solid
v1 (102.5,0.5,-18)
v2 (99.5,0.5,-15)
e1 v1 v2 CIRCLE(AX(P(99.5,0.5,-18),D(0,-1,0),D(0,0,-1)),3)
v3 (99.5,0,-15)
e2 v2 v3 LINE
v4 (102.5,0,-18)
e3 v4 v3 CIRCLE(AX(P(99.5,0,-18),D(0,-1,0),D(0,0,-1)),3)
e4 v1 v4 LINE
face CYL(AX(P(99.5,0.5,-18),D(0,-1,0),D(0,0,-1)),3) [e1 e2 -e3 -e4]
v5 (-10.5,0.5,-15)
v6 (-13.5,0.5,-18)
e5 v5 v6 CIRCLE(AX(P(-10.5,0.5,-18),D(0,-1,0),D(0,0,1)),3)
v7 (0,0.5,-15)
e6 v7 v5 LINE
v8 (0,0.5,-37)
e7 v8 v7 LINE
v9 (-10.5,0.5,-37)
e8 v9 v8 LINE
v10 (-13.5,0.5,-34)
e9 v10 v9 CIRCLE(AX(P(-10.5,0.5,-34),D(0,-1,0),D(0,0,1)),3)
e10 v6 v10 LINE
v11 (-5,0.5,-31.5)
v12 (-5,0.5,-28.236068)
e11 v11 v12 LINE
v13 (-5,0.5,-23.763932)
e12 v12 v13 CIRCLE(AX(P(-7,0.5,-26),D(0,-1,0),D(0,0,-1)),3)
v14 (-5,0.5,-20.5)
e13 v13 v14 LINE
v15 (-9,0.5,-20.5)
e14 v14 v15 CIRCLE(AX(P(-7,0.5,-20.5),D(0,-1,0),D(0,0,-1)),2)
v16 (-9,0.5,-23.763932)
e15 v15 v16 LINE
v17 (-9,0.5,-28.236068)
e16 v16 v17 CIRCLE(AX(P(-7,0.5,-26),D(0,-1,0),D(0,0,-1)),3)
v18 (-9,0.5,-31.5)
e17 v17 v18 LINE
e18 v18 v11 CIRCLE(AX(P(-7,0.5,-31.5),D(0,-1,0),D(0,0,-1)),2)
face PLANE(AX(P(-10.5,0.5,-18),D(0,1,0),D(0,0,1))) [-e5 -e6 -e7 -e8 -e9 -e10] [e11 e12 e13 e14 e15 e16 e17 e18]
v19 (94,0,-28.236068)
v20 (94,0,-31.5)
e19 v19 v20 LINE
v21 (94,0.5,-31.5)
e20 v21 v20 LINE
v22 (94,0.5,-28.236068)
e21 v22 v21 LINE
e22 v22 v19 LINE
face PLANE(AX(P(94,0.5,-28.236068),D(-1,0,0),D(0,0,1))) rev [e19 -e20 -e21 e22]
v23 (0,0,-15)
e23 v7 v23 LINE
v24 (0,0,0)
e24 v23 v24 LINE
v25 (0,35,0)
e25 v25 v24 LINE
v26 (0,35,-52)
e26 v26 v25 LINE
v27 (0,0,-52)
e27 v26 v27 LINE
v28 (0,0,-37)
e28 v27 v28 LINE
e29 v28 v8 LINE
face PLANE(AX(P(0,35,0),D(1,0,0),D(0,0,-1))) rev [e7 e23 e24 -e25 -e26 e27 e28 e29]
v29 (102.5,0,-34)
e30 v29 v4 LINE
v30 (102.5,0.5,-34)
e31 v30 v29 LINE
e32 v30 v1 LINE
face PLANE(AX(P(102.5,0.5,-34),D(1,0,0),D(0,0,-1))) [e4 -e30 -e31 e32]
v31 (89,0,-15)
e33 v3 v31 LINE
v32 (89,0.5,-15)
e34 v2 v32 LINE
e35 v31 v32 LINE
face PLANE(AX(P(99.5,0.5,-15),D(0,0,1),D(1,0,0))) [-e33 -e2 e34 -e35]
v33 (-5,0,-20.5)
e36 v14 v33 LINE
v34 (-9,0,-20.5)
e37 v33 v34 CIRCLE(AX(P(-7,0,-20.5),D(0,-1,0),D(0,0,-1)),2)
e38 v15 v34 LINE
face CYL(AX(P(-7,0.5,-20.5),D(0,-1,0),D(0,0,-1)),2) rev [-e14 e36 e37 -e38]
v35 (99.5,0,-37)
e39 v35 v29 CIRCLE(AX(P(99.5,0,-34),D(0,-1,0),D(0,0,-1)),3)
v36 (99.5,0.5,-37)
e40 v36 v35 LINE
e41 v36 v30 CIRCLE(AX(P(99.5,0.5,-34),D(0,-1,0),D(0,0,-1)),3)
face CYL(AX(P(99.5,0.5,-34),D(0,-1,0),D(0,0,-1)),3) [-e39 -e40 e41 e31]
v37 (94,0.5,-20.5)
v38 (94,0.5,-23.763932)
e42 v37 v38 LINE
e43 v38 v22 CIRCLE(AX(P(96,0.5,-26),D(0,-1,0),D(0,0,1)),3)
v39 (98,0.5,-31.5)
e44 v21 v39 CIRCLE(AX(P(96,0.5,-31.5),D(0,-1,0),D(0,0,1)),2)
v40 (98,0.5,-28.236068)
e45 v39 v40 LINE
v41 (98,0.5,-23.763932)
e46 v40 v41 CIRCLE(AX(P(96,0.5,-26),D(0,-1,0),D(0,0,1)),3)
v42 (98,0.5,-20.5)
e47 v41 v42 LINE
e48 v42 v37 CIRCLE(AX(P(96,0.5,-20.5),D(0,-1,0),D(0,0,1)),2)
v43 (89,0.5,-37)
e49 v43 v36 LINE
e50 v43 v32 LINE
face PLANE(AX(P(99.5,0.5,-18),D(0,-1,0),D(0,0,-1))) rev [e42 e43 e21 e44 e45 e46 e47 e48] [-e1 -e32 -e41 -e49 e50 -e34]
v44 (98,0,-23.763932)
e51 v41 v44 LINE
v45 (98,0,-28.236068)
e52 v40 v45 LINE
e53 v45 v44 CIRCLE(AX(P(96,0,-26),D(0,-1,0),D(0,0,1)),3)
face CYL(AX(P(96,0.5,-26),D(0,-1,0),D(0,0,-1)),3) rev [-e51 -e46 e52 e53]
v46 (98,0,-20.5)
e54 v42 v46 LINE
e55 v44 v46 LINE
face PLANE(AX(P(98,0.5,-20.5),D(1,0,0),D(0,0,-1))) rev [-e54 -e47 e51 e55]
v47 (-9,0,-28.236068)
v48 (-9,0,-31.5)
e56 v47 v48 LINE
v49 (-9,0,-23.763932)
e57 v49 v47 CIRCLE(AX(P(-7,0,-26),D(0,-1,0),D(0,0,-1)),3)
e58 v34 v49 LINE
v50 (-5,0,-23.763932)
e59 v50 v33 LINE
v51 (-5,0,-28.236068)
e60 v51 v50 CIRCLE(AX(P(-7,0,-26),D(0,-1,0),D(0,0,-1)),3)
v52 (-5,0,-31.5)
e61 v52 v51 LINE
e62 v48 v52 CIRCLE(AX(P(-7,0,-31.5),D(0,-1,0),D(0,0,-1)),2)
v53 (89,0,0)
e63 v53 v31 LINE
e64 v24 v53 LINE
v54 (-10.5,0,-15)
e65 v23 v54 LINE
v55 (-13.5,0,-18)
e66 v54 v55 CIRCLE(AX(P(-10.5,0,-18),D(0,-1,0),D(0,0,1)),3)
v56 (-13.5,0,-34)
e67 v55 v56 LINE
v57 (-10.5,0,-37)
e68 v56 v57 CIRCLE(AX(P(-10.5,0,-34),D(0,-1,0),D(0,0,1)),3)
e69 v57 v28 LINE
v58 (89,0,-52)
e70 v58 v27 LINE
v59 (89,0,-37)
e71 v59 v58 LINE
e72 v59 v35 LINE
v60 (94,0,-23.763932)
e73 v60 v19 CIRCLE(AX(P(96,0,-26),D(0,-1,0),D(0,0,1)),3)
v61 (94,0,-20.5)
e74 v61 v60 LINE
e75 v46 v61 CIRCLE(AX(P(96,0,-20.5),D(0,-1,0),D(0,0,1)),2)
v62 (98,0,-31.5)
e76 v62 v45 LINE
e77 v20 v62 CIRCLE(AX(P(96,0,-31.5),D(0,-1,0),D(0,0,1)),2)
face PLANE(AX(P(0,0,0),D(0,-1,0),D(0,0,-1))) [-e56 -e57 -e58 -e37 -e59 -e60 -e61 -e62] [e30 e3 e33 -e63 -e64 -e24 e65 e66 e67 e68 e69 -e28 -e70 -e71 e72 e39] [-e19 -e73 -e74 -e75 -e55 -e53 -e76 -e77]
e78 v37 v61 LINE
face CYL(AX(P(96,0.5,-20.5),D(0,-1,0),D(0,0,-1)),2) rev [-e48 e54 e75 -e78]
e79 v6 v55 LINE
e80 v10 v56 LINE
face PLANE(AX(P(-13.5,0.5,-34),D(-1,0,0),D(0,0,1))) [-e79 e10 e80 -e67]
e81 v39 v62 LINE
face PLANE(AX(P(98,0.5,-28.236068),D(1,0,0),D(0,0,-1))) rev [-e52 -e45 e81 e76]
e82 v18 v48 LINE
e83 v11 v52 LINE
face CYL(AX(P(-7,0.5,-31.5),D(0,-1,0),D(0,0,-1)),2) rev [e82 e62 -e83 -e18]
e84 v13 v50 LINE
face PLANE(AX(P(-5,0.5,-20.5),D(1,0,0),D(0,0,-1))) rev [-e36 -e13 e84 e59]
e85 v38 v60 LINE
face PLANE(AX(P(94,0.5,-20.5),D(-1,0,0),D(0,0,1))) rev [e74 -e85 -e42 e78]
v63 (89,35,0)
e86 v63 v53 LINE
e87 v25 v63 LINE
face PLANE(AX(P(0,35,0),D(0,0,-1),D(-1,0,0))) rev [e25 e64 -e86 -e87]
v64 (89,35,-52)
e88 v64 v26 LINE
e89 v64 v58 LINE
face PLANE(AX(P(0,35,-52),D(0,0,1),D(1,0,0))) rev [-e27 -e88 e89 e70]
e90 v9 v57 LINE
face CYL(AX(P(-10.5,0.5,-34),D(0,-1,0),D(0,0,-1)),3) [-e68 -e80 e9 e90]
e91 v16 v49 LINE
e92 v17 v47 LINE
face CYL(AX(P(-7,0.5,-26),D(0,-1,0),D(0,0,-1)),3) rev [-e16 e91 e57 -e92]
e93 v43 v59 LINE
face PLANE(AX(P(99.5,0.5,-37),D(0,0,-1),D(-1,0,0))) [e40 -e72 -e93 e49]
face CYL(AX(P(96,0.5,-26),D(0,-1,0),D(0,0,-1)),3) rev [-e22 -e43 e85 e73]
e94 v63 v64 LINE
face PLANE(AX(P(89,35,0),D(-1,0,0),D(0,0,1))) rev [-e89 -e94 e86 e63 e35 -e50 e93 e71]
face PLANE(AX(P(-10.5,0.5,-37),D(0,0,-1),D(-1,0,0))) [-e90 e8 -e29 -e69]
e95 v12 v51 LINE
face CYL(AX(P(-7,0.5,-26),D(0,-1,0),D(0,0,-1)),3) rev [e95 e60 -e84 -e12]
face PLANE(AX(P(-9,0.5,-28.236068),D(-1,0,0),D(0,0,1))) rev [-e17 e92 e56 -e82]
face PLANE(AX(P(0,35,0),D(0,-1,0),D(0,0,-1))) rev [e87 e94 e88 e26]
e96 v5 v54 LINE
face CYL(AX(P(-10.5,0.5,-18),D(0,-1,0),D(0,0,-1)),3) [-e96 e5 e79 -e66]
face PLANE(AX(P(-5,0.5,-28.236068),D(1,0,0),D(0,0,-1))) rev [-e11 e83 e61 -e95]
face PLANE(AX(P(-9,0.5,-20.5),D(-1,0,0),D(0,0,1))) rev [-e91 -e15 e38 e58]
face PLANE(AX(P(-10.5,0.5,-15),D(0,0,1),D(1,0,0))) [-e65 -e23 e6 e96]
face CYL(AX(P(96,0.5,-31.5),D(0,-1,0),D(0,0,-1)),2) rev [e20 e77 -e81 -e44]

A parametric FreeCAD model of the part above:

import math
import FreeCAD as App
import Part
import Sketcher
from FreeCAD import Vector
Q = App.Units.Quantity


def add_polygon(sketch, points):
    """Adds a closed chain of lines whose ends are joined by coincident constraints."""
    first, n = sketch.GeometryCount, len(points)
    for a, b in zip(points, points[1:] + points[:1]):
        sketch.addGeometry(Part.LineSegment(App.Vector(*a, 0), App.Vector(*b, 0)), False)
    for i in range(n):
        sketch.addConstraint(Sketcher.Constraint("Coincident", first + i, 2, first + (i + 1) % n, 1))

doc = App.newDocument("Part")
body = doc.addObject("PartDesign::Body", "Body")

# Sketch on XZ plane
sketch1 = body.newObject("Sketcher::SketchObject", "Sketch")
sketch1.AttachmentSupport = (doc.getObject("XZ_Plane"), [""])
sketch1.MapMode = "FlatFace"
add_polygon(sketch1, [(0, -52), (0, 0), (89, 0), (89, -52)])  # lines 0-3
sketch1.addConstraint([
    Sketcher.Constraint("Vertical", 0),
    Sketcher.Constraint("Horizontal", 1),
    Sketcher.Constraint("Vertical", 2),
    Sketcher.Constraint("Horizontal", 3),
    Sketcher.Constraint("Coincident", 0, 2, -1, 1),
    Sketcher.Constraint("DistanceX", 1, 1, 1, 2, Q("89 mm")),
    Sketcher.Constraint("DistanceY", 0, 1, 0, 2, Q("52 mm")),
])
pad1 = body.newObject("PartDesign::Pad", "Pad")
pad1.Profile = sketch1
pad1.Length = 35
pad1.Reversed = True

# Sketch on XZ plane
sketch2 = body.newObject("Sketcher::SketchObject", "Sketch001")
sketch2.AttachmentSupport = (doc.getObject("XZ_Plane"), [""])
sketch2.MapMode = "FlatFace"
sketch2.addGeometry([
    Part.LineSegment(Vector(-10.5, -37, 0), Vector(13.5, -37, 0)),  # 0
    Part.LineSegment(Vector(13.5, -37, 0), Vector(13.5, -15, 0)),  # 1
    Part.LineSegment(Vector(13.5, -15, 0), Vector(-10.5, -15, 0)),  # 2
    Part.ArcOfCircle(Part.Circle(Vector(-10.5, -18, 0), Vector(0, 0, 1), 3), math.radians(90), math.radians(180)),  # 3
    Part.LineSegment(Vector(-13.5, -18, 0), Vector(-13.5, -34, 0)),  # 4
    Part.ArcOfCircle(Part.Circle(Vector(-10.5, -34, 0), Vector(0, 0, 1), 3), math.radians(180), math.radians(270)),  # 5
    Part.ArcOfCircle(Part.Circle(Vector(-7, -20.5, 0), Vector(0, 0, 1), 2), math.radians(0), math.radians(180)),  # 6
    Part.LineSegment(Vector(-5, -20.5, 0), Vector(-5, -23.763932, 0)),  # 7
    Part.ArcOfCircle(Part.Circle(Vector(-7, -26, 0), Vector(0, 0, 1), 3), math.radians(-48.189685), math.radians(48.189685)),  # 8
    Part.LineSegment(Vector(-5, -28.236068, 0), Vector(-5, -31.5, 0)),  # 9
    Part.ArcOfCircle(Part.Circle(Vector(-7, -31.5, 0), Vector(0, 0, 1), 2), math.radians(180), math.radians(360)),  # 10
    Part.LineSegment(Vector(-9, -31.5, 0), Vector(-9, -28.236068, 0)),  # 11
    Part.ArcOfCircle(Part.Circle(Vector(-7, -26, 0), Vector(0, 0, 1), 3), math.radians(131.810315), math.radians(228.189685)),  # 12
    Part.LineSegment(Vector(-9, -23.763932, 0), Vector(-9, -20.5, 0)),  # 13
    Part.LineSegment(Vector(75.5, -15, 0), Vector(75.5, -37, 0)),  # 14
    Part.LineSegment(Vector(75.5, -37, 0), Vector(99.5, -37, 0)),  # 15
    Part.ArcOfCircle(Part.Circle(Vector(99.5, -34, 0), Vector(0, 0, 1), 3), math.radians(-90), math.radians(0)),  # 16
    Part.LineSegment(Vector(102.5, -34, 0), Vector(102.5, -18, 0)),  # 17
    Part.ArcOfCircle(Part.Circle(Vector(99.5, -18, 0), Vector(0, 0, 1), 3), math.radians(0), math.radians(90)),  # 18
    Part.LineSegment(Vector(99.5, -15, 0), Vector(75.5, -15, 0)),  # 19
    Part.LineSegment(Vector(98, -28.236068, 0), Vector(98, -31.5, 0)),  # 20
    Part.ArcOfCircle(Part.Circle(Vector(96, -31.5, 0), Vector(0, 0, 1), 2), math.radians(180), math.radians(360)),  # 21
    Part.LineSegment(Vector(94, -31.5, 0), Vector(94, -28.236068, 0)),  # 22
    Part.ArcOfCircle(Part.Circle(Vector(96, -26, 0), Vector(0, 0, 1), 3), math.radians(131.810315), math.radians(228.189685)),  # 23
    Part.LineSegment(Vector(94, -23.763932, 0), Vector(94, -20.5, 0)),  # 24
    Part.ArcOfCircle(Part.Circle(Vector(96, -20.5, 0), Vector(0, 0, 1), 2), math.radians(0), math.radians(180)),  # 25
    Part.LineSegment(Vector(98, -20.5, 0), Vector(98, -23.763932, 0)),  # 26
    Part.ArcOfCircle(Part.Circle(Vector(96, -26, 0), Vector(0, 0, 1), 3), math.radians(-48.189685), math.radians(48.189685)),  # 27
], False)
sketch2.addConstraint([
    Sketcher.Constraint("Coincident", 0, 2, 1, 1),
    Sketcher.Constraint("Coincident", 1, 2, 2, 1),
    Sketcher.Constraint("Tangent", 2, 2, 3, 1),
    Sketcher.Constraint("Tangent", 3, 2, 4, 1),
    Sketcher.Constraint("Tangent", 4, 2, 5, 1),
    Sketcher.Constraint("Tangent", 5, 2, 0, 1),
    Sketcher.Constraint("Tangent", 6, 1, 7, 1),
    Sketcher.Constraint("Coincident", 7, 2, 8, 2),
    Sketcher.Constraint("Coincident", 8, 1, 9, 1),
    Sketcher.Constraint("Tangent", 9, 2, 10, 2),
    Sketcher.Constraint("Tangent", 10, 1, 11, 1),
    Sketcher.Constraint("Coincident", 11, 2, 12, 2),
    Sketcher.Constraint("Coincident", 12, 1, 13, 1),
    Sketcher.Constraint("Tangent", 13, 2, 6, 2),
    Sketcher.Constraint("Coincident", 14, 2, 15, 1),
    Sketcher.Constraint("Tangent", 15, 2, 16, 1),
    Sketcher.Constraint("Tangent", 16, 2, 17, 1),
    Sketcher.Constraint("Tangent", 17, 2, 18, 1),
    Sketcher.Constraint("Tangent", 18, 2, 19, 1),
    Sketcher.Constraint("Coincident", 19, 2, 14, 1),
    Sketcher.Constraint("Tangent", 20, 2, 21, 2),
    Sketcher.Constraint("Tangent", 21, 1, 22, 1),
    Sketcher.Constraint("Coincident", 22, 2, 23, 2),
    Sketcher.Constraint("Coincident", 23, 1, 24, 1),
    Sketcher.Constraint("Tangent", 24, 2, 25, 2),
    Sketcher.Constraint("Tangent", 25, 1, 26, 1),
    Sketcher.Constraint("Coincident", 26, 2, 27, 2),
    Sketcher.Constraint("Coincident", 27, 1, 20, 1),
    Sketcher.Constraint("Horizontal", 0),
    Sketcher.Constraint("Vertical", 1),
    Sketcher.Constraint("Horizontal", 2),
    Sketcher.Constraint("Vertical", 4),
    Sketcher.Constraint("Vertical", 7),
    Sketcher.Constraint("Vertical", 9),
    Sketcher.Constraint("Vertical", 11),
    Sketcher.Constraint("Vertical", 13),
    Sketcher.Constraint("Vertical", 14),
    Sketcher.Constraint("Horizontal", 15),
    Sketcher.Constraint("Vertical", 17),
    Sketcher.Constraint("Horizontal", 19),
    Sketcher.Constraint("Vertical", 20),
    Sketcher.Constraint("Vertical", 22),
    Sketcher.Constraint("Vertical", 24),
    Sketcher.Constraint("Vertical", 26),
    Sketcher.Constraint("Coincident", 12, 3, 8, 3),
    Sketcher.Constraint("Coincident", 27, 3, 23, 3),
    Sketcher.Constraint("Equal", 3, 5),
    Sketcher.Constraint("Equal", 5, 8),
    Sketcher.Constraint("Equal", 6, 10),
    Sketcher.Constraint("Equal", 8, 12),
    Sketcher.Constraint("Equal", 12, 16),
    Sketcher.Constraint("Equal", 16, 18),
    Sketcher.Constraint("Equal", 10, 21),
    Sketcher.Constraint("Equal", 18, 23),
    Sketcher.Constraint("Equal", 21, 25),
    Sketcher.Constraint("Equal", 23, 27),
    Sketcher.Constraint("Horizontal", 5, 3, 16, 3),
    Sketcher.Constraint("Horizontal", 3, 3, 18, 3),
    Sketcher.Constraint("Horizontal", 10, 3, 21, 3),
    Sketcher.Constraint("Horizontal", 12, 3, 23, 3),
    Sketcher.Constraint("Horizontal", 6, 3, 25, 3),
    Sketcher.Constraint("Horizontal", 8, 1, 11, 2),
    Sketcher.Constraint("Horizontal", 7, 2, 12, 1),
    Sketcher.Constraint("Horizontal", 11, 2, 22, 2),
    Sketcher.Constraint("Horizontal", 12, 1, 23, 1),
    Sketcher.Constraint("Equal", 2, 15),
    Sketcher.Constraint("Equal", 7, 9),
    Sketcher.Constraint("Radius", 3, Q("3 mm")),
    Sketcher.Constraint("Radius", 6, Q("2 mm")),
    Sketcher.Constraint("DistanceX", 0, 1, 0, 2, Q("24 mm")),
    Sketcher.Constraint("DistanceY", 1, 1, 1, 2, Q("22 mm")),
    Sketcher.Constraint("DistanceY", 3, 3, -1, 1, Q("18 mm")),
    Sketcher.Constraint("DistanceX", 6, 3, -1, 1, Q("7 mm")),
    Sketcher.Constraint("DistanceY", 8, 3, -1, 1, Q("26 mm")),
    Sketcher.Constraint("DistanceX", -1, 1, 21, 3, Q("96 mm")),
    Sketcher.Constraint("DistanceY", 10, 3, 6, 3, Q("11 mm")),
    Sketcher.Constraint("DistanceX", 5, 3, 16, 3, Q("110 mm")),
    Sketcher.Constraint("DistanceX", 3, 3, -1, 1, Q("10.5 mm")),
])
pad2 = body.newObject("PartDesign::Pad", "Pad001")
pad2.Profile = sketch2
pad2.Length = 0.5
pad2.Reversed = True

doc.recompute()
